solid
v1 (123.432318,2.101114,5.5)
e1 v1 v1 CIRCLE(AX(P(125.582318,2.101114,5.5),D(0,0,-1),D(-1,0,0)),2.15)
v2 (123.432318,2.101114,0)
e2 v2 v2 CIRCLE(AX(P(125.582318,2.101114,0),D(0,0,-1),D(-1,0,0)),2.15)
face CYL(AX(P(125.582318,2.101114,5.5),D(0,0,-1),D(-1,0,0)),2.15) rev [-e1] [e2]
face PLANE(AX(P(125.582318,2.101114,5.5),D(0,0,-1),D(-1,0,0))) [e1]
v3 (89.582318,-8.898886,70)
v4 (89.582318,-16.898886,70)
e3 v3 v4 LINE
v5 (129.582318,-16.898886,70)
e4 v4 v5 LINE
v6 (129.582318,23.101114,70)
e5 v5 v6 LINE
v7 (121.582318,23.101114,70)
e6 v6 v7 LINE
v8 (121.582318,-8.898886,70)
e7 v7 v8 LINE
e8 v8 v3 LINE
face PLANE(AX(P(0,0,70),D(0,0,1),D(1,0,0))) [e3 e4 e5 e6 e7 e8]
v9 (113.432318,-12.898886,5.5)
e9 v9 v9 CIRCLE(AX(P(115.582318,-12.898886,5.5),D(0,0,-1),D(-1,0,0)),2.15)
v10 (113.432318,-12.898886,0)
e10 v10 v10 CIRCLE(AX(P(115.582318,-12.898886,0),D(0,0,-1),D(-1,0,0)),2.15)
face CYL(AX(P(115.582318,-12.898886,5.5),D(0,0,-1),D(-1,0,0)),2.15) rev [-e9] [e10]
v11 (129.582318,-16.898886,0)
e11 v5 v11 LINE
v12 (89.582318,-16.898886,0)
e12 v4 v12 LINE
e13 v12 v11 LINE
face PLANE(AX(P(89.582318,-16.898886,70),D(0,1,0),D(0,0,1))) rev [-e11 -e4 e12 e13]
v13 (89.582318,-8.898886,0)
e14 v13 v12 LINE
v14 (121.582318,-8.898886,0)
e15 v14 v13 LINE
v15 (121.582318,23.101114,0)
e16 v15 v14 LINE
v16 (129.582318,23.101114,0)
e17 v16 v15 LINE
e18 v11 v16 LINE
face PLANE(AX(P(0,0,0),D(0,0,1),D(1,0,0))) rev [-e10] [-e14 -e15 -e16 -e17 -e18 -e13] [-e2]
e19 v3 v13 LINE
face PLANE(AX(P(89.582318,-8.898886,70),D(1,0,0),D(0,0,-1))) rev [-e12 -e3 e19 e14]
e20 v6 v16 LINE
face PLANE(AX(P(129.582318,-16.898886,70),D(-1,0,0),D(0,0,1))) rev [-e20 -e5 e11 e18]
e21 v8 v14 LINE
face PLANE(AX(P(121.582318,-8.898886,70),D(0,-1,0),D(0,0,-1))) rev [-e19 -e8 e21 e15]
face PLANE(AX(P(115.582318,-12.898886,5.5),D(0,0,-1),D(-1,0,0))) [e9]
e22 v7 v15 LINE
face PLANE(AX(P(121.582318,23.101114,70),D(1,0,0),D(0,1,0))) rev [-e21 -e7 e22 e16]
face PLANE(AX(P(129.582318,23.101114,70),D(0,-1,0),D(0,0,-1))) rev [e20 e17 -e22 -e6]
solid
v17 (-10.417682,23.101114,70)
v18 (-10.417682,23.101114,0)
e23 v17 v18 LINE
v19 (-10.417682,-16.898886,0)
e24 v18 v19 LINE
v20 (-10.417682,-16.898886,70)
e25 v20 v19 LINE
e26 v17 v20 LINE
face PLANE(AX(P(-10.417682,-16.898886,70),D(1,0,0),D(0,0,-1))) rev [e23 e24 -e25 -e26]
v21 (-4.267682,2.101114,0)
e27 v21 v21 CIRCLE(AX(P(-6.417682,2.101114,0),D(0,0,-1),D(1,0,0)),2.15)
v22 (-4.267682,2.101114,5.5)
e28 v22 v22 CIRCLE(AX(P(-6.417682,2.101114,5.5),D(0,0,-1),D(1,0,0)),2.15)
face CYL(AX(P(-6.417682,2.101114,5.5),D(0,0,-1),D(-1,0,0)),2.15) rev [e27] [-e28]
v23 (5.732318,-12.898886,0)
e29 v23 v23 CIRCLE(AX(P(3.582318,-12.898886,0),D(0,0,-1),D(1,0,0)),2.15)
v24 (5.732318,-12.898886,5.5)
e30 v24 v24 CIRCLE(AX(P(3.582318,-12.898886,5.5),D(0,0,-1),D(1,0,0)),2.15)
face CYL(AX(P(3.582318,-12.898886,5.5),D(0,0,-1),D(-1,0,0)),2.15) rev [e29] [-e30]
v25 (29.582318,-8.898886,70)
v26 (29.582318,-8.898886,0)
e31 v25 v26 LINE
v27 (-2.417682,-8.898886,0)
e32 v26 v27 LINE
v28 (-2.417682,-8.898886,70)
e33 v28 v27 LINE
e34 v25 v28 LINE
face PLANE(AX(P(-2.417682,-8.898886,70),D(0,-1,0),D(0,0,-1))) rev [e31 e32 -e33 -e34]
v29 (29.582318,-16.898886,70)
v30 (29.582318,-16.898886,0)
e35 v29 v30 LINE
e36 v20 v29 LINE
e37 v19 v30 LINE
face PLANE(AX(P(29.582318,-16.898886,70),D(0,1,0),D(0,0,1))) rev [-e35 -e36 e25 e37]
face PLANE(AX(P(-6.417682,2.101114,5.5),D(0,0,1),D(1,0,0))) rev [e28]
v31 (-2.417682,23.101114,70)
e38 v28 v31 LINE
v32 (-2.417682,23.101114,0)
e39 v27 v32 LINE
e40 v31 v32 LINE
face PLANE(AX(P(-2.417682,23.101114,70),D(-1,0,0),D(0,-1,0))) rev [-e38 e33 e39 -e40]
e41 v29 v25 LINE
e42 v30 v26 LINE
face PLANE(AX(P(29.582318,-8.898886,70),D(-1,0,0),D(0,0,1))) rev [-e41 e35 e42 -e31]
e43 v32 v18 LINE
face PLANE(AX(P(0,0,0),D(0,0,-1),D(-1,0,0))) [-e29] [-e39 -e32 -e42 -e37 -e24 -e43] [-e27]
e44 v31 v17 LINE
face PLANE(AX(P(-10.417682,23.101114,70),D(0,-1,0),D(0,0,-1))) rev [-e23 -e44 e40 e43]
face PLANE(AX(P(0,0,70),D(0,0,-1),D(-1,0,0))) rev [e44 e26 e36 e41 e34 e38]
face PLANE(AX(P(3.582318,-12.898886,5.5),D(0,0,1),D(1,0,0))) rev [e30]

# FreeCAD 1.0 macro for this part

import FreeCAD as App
import Part
import Sketcher

V = App.Vector
Q = App.Units.Quantity


def add_polygon(sketch, points):
    """Adds a closed chain of lines whose ends are joined by coincident constraints."""
    first, n = sketch.GeometryCount, len(points)
    for a, b in zip(points, points[1:] + points[:1]):
        sketch.addGeometry(Part.LineSegment(App.Vector(*a, 0), App.Vector(*b, 0)), False)
    for i in range(n):
        sketch.addConstraint(Sketcher.Constraint("Coincident", first + i, 2, first + (i + 1) % n, 1))

doc = App.newDocument("Part")
params = doc.addObject("Spreadsheet::Sheet", "Params")
for row, (alias, value) in enumerate([
    ("sketch1_width", "8 mm"),
    ("sketch1_width2", "40 mm"),
    ("pad1_length", "70 mm"),
    ("sketch2_width", "8 mm"),
    ("sketch2_width2", "32 mm"),
    ("pad2_length", "70 mm"),
    ("sketch3_diameter", "4.3 mm"),
    ("pad3_length", "5.5 mm"),
], start=1):
    params.set(f"A{row}", alias)
    params.set(f"B{row}", "=" + value)
    params.setAlias(f"B{row}", alias)

body = doc.addObject("PartDesign::Body", "Body")

# Sketch on XY plane
sketch1 = doc.addObject("Sketcher::SketchObject", "Sketch")
body.addObject(sketch1)
sketch1.AttachmentSupport = (doc.XY_Plane, [""])
sketch1.MapMode = "FlatFace"
add_polygon(sketch1, [(-2, 23), (-10, 23), (-10, -17), (30, -17), (30, -9), (-2, -9)])  # lines 0-5
sketch1.addConstraint([
    Sketcher.Constraint("Horizontal", 0),
    Sketcher.Constraint("Vertical", 1),
    Sketcher.Constraint("Horizontal", 2),
    Sketcher.Constraint("Vertical", 3),
    Sketcher.Constraint("Horizontal", 4),
    Sketcher.Constraint("Vertical", 5),
    Sketcher.Constraint("Equal", 2, 1),
    Sketcher.Constraint("Equal", 0, 3),
    Sketcher.Constraint("DistanceX", 0, 2, 0, 1, Q("8 mm")),
    Sketcher.Constraint("DistanceX", 2, 1, 2, 2, Q("40 mm")),
    Sketcher.Constraint("DistanceX", 0, 2, -1, 1, Q("10.417682 mm")),
    Sketcher.Constraint("DistanceY", -1, 1, 0, 2, Q("23.101114 mm")),
])
sketch1.setExpression("Constraints[14]", "Params.sketch1_width")
sketch1.setExpression("Constraints[15]", "Params.sketch1_width2")
pad1 = doc.addObject("PartDesign::Pad", "Pad")
body.addObject(pad1)
pad1.Profile = sketch1
pad1.setExpression("Length", "Params.pad1_length")
body2 = doc.addObject("PartDesign::Body", "Body001")

# Sketch on XY plane
sketch2 = doc.addObject("Sketcher::SketchObject", "Sketch001")
body2.addObject(sketch2)
sketch2.AttachmentSupport = (doc.getObject("XY_Plane001"), [""])
sketch2.MapMode = "FlatFace"
add_polygon(sketch2, [(130, -17), (130, 23), (122, 23), (122, -9), (90, -9), (90, -17)])  # lines 0-5
sketch2.addConstraint([
    Sketcher.Constraint("Vertical", 0),
    Sketcher.Constraint("Horizontal", 1),
    Sketcher.Constraint("Vertical", 2),
    Sketcher.Constraint("Horizontal", 3),
    Sketcher.Constraint("Vertical", 4),
    Sketcher.Constraint("Horizontal", 5),
    Sketcher.Constraint("Equal", 5, 0),
    Sketcher.Constraint("Equal", 3, 2),
    Sketcher.Constraint("DistanceX", 1, 2, 1, 1, Q("8 mm")),
    Sketcher.Constraint("DistanceX", 3, 2, 3, 1, Q("32 mm")),
    Sketcher.Constraint("DistanceX", -1, 1, 0, 2, Q("129.582318 mm")),
    Sketcher.Constraint("DistanceY", -1, 1, 0, 2, Q("23.101114 mm")),
])
sketch2.setExpression("Constraints[14]", "Params.sketch2_width")
sketch2.setExpression("Constraints[15]", "Params.sketch2_width2")
pad2 = doc.addObject("PartDesign::Pad", "Pad001")
body2.addObject(pad2)
pad2.Profile = sketch2
pad2.setExpression("Length", "Params.pad2_length")
body3 = doc.addObject("PartDesign::Body", "Body002")
body3.AllowCompound = True

# Sketch on XY plane
sketch3 = doc.addObject("Sketcher::SketchObject", "Sketch002")
body3.addObject(sketch3)
sketch3.AttachmentSupport = (doc.getObject("XY_Plane002"), [""])
sketch3.MapMode = "FlatFace"
sketch3.addGeometry([
    Part.Circle(V(125.6, 2.1, 0), V(0, 0, 1), 2.1),
    Part.Circle(V(115.6, -12.9, 0), V(0, 0, 1), 2.1),
    Part.Circle(V(3.6, -12.9, 0), V(0, 0, 1), 2.1),
    Part.Circle(V(-6.4, 2.1, 0), V(0, 0, 1), 2.1),
], False)
sketch3.addConstraint([
    Sketcher.Constraint("Equal", 0, 1),
    Sketcher.Constraint("Equal", 1, 2),
    Sketcher.Constraint("Equal", 2, 3),
    Sketcher.Constraint("Horizontal", 1, 3, 2, 3),
    Sketcher.Constraint("Horizontal", 0, 3, 3, 3),
    Sketcher.Constraint("Diameter", 0, Q("4.3 mm")),
    Sketcher.Constraint("DistanceX", 1, 3, 0, 3, Q("10 mm")),
    Sketcher.Constraint("DistanceY", 1, 3, 0, 3, Q("15 mm")),
    Sketcher.Constraint("DistanceX", 2, 3, 1, 3, Q("112 mm")),
    Sketcher.Constraint("DistanceX", 3, 3, 2, 3, Q("10 mm")),
    Sketcher.Constraint("DistanceX", -1, 1, 0, 3, Q("125.582318 mm")),
    Sketcher.Constraint("DistanceY", -1, 1, 0, 3, Q("2.101113 mm")),
])
sketch3.setExpression("Constraints[5]", "Params.sketch3_diameter")
pad3 = doc.addObject("PartDesign::Pad", "Pad002")
body3.addObject(pad3)
pad3.Profile = sketch3
pad3.setExpression("Length", "Params.pad3_length")
doc.recompute()

body4 = doc.addObject("PartDesign::Body", "Body003")
body4.BaseFeature = body3
boolean = doc.addObject("PartDesign::Boolean", "Boolean")
body.addObject(boolean)
boolean.Type = "Cut"
boolean.addObjects([body4])
doc.recompute()

boolean2 = doc.addObject("PartDesign::Boolean", "Boolean001")
body2.addObject(boolean2)
boolean2.Type = "Cut"
boolean2.addObjects([body3])

doc.recompute()
